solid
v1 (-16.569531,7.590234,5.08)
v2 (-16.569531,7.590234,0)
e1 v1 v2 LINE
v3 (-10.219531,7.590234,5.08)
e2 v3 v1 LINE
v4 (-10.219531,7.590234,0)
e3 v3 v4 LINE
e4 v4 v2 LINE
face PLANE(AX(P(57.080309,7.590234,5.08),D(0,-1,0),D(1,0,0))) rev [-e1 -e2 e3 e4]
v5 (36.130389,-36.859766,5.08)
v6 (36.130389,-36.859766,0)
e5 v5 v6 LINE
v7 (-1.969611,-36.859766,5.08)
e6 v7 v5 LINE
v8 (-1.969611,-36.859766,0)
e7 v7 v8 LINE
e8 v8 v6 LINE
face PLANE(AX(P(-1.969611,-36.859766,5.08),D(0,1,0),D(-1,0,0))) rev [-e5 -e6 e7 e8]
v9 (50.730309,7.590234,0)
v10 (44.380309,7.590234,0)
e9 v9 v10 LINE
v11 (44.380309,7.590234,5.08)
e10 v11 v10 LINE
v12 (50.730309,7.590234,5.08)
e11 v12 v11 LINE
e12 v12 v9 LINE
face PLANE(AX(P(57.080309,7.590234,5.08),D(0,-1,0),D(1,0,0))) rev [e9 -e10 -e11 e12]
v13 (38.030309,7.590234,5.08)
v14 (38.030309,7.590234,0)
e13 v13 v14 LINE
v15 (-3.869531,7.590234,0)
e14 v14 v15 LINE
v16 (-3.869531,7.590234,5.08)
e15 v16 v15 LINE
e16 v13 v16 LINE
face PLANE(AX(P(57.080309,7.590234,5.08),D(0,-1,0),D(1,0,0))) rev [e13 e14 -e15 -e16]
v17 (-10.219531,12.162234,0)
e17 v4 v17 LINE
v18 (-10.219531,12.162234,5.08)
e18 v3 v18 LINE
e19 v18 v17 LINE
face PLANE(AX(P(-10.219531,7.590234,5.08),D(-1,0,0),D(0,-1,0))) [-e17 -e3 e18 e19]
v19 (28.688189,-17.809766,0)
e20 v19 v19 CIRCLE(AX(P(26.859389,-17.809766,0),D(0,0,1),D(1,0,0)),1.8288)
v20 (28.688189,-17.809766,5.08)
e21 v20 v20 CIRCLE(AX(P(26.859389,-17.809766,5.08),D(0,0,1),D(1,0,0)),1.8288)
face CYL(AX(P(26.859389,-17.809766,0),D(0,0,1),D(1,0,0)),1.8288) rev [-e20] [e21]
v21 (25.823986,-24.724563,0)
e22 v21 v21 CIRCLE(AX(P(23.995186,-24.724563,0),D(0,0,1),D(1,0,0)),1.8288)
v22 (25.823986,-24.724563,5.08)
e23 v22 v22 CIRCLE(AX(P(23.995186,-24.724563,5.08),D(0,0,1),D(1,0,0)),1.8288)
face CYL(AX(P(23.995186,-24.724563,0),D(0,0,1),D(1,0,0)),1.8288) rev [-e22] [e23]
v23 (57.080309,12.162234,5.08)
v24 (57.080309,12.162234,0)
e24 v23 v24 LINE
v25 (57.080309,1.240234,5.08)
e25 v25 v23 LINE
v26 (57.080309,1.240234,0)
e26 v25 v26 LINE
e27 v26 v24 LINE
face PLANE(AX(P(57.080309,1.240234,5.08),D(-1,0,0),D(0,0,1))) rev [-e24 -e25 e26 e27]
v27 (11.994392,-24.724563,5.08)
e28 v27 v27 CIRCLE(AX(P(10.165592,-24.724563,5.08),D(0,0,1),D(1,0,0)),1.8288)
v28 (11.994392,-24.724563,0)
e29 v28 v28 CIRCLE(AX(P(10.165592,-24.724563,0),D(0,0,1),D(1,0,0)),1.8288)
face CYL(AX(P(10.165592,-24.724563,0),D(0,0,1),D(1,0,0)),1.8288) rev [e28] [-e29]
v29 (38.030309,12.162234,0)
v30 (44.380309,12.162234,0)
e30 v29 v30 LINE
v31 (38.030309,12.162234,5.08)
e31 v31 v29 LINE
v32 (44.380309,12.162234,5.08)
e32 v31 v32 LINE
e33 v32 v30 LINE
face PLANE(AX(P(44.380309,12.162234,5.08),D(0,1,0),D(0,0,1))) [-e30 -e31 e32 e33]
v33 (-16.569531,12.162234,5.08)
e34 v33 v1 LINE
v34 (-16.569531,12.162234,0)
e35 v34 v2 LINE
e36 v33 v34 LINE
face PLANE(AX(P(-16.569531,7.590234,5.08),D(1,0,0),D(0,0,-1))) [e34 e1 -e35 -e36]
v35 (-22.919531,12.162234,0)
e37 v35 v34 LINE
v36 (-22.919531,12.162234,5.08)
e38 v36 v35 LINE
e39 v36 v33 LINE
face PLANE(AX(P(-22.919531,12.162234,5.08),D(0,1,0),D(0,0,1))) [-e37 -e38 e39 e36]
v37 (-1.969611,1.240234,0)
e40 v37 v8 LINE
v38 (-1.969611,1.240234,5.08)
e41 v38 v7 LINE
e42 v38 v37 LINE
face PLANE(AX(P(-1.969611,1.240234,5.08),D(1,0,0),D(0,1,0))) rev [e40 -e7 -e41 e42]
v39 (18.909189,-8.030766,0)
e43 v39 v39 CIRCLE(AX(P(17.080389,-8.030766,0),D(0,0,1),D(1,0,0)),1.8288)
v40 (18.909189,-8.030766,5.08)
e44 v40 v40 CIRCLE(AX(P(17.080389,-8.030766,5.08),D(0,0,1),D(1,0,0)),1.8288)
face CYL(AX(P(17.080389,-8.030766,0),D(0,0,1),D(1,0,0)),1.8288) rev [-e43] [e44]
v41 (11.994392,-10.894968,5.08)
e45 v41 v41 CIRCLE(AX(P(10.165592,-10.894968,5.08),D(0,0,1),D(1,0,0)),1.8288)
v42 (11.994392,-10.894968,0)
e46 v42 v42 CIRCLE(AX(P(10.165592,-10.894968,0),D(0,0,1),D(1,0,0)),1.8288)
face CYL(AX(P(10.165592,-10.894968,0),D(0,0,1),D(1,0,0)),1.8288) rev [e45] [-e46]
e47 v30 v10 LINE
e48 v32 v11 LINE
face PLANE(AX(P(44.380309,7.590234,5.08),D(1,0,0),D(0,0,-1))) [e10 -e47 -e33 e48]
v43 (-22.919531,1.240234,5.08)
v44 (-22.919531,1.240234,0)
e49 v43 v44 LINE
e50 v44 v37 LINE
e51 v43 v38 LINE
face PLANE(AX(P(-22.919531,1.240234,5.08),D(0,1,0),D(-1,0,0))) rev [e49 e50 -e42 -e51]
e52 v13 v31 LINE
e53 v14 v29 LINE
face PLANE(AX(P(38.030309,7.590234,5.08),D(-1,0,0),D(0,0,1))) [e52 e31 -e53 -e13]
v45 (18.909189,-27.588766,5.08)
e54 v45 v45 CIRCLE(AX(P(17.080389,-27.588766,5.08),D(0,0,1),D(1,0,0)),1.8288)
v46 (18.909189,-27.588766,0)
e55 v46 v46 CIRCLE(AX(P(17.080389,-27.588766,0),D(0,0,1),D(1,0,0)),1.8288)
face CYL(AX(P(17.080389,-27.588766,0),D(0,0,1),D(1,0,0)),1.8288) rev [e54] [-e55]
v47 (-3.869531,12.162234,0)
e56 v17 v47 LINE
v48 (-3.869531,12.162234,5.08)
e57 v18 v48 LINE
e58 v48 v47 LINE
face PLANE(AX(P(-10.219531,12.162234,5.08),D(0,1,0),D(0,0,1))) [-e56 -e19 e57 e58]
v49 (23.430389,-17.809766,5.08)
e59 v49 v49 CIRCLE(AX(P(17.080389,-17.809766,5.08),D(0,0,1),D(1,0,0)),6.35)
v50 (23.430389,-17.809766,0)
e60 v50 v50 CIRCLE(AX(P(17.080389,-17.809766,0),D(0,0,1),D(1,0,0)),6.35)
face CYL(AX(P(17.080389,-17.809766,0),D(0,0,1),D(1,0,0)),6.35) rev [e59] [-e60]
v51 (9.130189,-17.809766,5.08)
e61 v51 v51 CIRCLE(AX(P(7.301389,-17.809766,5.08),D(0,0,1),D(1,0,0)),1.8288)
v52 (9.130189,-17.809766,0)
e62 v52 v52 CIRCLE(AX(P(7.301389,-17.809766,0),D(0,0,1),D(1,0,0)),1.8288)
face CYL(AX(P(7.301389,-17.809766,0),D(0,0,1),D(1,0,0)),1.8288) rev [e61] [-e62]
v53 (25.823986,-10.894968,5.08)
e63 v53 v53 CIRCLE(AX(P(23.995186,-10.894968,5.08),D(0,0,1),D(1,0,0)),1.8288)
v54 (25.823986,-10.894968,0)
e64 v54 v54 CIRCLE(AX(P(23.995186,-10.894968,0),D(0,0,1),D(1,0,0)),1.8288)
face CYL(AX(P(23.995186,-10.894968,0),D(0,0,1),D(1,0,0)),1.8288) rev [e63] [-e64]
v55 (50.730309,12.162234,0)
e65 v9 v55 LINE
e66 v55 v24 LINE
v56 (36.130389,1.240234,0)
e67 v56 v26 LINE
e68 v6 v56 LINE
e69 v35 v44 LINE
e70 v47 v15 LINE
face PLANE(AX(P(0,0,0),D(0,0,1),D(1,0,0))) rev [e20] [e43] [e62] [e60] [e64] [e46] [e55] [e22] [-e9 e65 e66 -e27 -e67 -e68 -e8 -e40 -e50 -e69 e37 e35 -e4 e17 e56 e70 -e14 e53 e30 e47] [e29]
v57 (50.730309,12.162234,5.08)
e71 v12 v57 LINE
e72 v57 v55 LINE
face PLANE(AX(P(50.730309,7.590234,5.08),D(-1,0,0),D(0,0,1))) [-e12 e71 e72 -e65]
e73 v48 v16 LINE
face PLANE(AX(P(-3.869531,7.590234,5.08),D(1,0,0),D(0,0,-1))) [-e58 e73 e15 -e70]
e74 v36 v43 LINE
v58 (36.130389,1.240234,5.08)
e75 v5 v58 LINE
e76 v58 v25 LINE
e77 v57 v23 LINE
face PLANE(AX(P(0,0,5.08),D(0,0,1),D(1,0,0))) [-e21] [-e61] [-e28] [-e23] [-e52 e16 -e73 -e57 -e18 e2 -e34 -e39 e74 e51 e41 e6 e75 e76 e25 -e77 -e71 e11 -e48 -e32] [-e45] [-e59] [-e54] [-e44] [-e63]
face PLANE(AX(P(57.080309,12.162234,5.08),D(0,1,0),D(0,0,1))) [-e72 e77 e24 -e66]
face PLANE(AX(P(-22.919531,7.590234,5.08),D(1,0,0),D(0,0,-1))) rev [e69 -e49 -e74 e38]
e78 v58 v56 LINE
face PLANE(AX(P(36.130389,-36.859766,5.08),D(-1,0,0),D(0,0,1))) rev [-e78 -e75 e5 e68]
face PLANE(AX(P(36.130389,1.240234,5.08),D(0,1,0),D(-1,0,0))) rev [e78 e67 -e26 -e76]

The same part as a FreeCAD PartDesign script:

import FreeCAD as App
import Part
import Sketcher

V = App.Vector
Q = App.Units.Quantity


def add_polygon(sketch, points):
    """Adds a closed chain of lines whose ends are joined by coincident constraints."""
    first, n = sketch.GeometryCount, len(points)
    for a, b in zip(points, points[1:] + points[:1]):
        sketch.addGeometry(Part.LineSegment(App.Vector(*a, 0), App.Vector(*b, 0)), False)
    for i in range(n):
        sketch.addConstraint(Sketcher.Constraint("Coincident", first + i, 2, first + (i + 1) % n, 1))

doc = App.newDocument("Part")
body = doc.addObject("PartDesign::Body", "Body")

# Sketch on XY plane
sketch1 = body.newObject("Sketcher::SketchObject", "Sketch")
sketch1.AttachmentSupport = (doc.getObject("XY_Plane"), [""])
sketch1.MapMode = "FlatFace"
add_polygon(sketch1, [(-23, 8), (-23, 1), (-2, 1), (-2, -37), (36, -37), (36, 1), (57, 1), (57, 8)])  # lines 0-7
sketch1.addConstraint([
    Sketcher.Constraint("Vertical", 0),
    Sketcher.Constraint("Horizontal", 1),
    Sketcher.Constraint("Vertical", 2),
    Sketcher.Constraint("Horizontal", 3),
    Sketcher.Constraint("Vertical", 4),
    Sketcher.Constraint("Horizontal", 5),
    Sketcher.Constraint("Vertical", 6),
    Sketcher.Constraint("Horizontal", 7),
    Sketcher.Constraint("Horizontal", 1, 2, 4, 2),
    Sketcher.Constraint("Equal", 1, 5),
    Sketcher.Constraint("Equal", 3, 2),
    Sketcher.Constraint("DistanceX", 3, 1, 3, 2, Q("1.5 in")),
    Sketcher.Constraint("DistanceY", 0, 2, 0, 1, Q("0.25 in")),
    Sketcher.Constraint("DistanceX", 1, 1, 1, 2, Q("0.8248 in")),
    Sketcher.Constraint("DistanceX", 0, 2, -1, 1, 22.919531),
    Sketcher.Constraint("DistanceY", -1, 1, 0, 2, 1.240234),
])
pad1 = body.newObject("PartDesign::Pad", "Pad")
pad1.Profile = sketch1
pad1.Length = Q("0.2 in")

# Sketch on XY plane
sketch2 = body.newObject("Sketcher::SketchObject", "Sketch001")
sketch2.AttachmentSupport = (doc.getObject("XY_Plane"), [""])
sketch2.MapMode = "FlatFace"
add_polygon(sketch2, [(-16.6, 12.2), (-16.6, 7.6), (-22.9, 7.6), (-22.9, 12.2)])  # lines 0-3
add_polygon(sketch2, [(-3.9, 12.2), (-3.9, 7.6), (-10.2, 7.6), (-10.2, 12.2)])  # lines 4-7
add_polygon(sketch2, [(8.8, 12.2), (8.8, 7.6), (2.5, 7.6), (2.5, 12.2)])  # lines 8-11
add_polygon(sketch2, [(31.7, 12.2), (31.7, 7.6), (25.3, 7.6), (25.3, 12.2)])  # lines 12-15
add_polygon(sketch2, [(44.4, 12.2), (44.4, 7.6), (38, 7.6), (38, 12.2)])  # lines 16-19
add_polygon(sketch2, [(57.1, 12.2), (57.1, 7.6), (50.7, 7.6), (50.7, 12.2)])  # lines 20-23
sketch2.addConstraint([
    Sketcher.Constraint("Vertical", 0),
    Sketcher.Constraint("Horizontal", 1),
    Sketcher.Constraint("Vertical", 2),
    Sketcher.Constraint("Horizontal", 3),
    Sketcher.Constraint("Vertical", 4),
    Sketcher.Constraint("Horizontal", 5),
    Sketcher.Constraint("Vertical", 6),
    Sketcher.Constraint("Horizontal", 7),
    Sketcher.Constraint("Vertical", 8),
    Sketcher.Constraint("Horizontal", 9),
    Sketcher.Constraint("Vertical", 10),
    Sketcher.Constraint("Horizontal", 11),
    Sketcher.Constraint("Vertical", 12),
    Sketcher.Constraint("Horizontal", 13),
    Sketcher.Constraint("Vertical", 14),
    Sketcher.Constraint("Horizontal", 15),
    Sketcher.Constraint("Vertical", 16),
    Sketcher.Constraint("Horizontal", 17),
    Sketcher.Constraint("Vertical", 18),
    Sketcher.Constraint("Horizontal", 19),
    Sketcher.Constraint("Vertical", 20),
    Sketcher.Constraint("Horizontal", 21),
    Sketcher.Constraint("Vertical", 22),
    Sketcher.Constraint("Horizontal", 23),
    Sketcher.Constraint("Horizontal", 1, 2, 4, 2),
    Sketcher.Constraint("Horizontal", 3, 2, 6, 2),
    Sketcher.Constraint("Horizontal", 5, 2, 8, 2),
    Sketcher.Constraint("Horizontal", 7, 2, 10, 2),
    Sketcher.Constraint("Horizontal", 9, 2, 12, 2),
    Sketcher.Constraint("Horizontal", 11, 2, 14, 2),
    Sketcher.Constraint("Horizontal", 13, 2, 16, 2),
    Sketcher.Constraint("Horizontal", 15, 2, 18, 2),
    Sketcher.Constraint("Horizontal", 17, 2, 20, 2),
    Sketcher.Constraint("Horizontal", 19, 2, 22, 2),
    Sketcher.Constraint("Equal", 3, 5),
    Sketcher.Constraint("Equal", 7, 9),
    Sketcher.Constraint("Equal", 11, 13),
    Sketcher.Constraint("Equal", 15, 17),
    Sketcher.Constraint("Equal", 19, 21),
    Sketcher.Constraint("DistanceX", 0, 2, 8, 2, Q("1 in")),
    Sketcher.Constraint("DistanceX", 12, 2, 20, 2, Q("1 in")),
    Sketcher.Constraint("DistanceX", 1, 2, 1, 1, Q("0.25 in")),
    Sketcher.Constraint("DistanceY", 0, 2, 0, 1, Q("0.18 in")),
    Sketcher.Constraint("DistanceX", 0, 2, 4, 2, Q("0.5 in")),
    Sketcher.Constraint("DistanceX", 12, 2, 16, 2, Q("0.5 in")),
    Sketcher.Constraint("DistanceX", 8, 2, 12, 2, Q("0.8996 in")),
    Sketcher.Constraint("DistanceX", 0, 2, -1, 1, 16.569531),
    Sketcher.Constraint("DistanceY", -1, 1, 0, 2, 7.590234),
])
pad2 = body.newObject("PartDesign::Pad", "Pad001")
pad2.Profile = sketch2
pad2.Length = Q("0.2 in")

# Sketch on XY plane
sketch3 = body.newObject("Sketcher::SketchObject", "Sketch002")
sketch3.AttachmentSupport = (doc.getObject("XY_Plane"), [""])
sketch3.MapMode = "FlatFace"
sketch3.AttachmentOffset = App.Placement(V(0, 0, 0.2 * 25.4), App.Rotation())
sketch3.addGeometry([
    Part.Circle(V(17.1, -17.8, 0), V(0, 0, 1), 6.3),  # 0
    Part.Circle(V(7.3, -17.8, 0), V(0, 0, 1), 1.8),  # 1
    Part.Circle(V(10.2, -10.9, 0), V(0, 0, 1), 1.8),  # 2
    Part.Circle(V(17.1, -8, 0), V(0, 0, 1), 1.8),  # 3
    Part.Circle(V(24, -10.9, 0), V(0, 0, 1), 1.8),  # 4
    Part.Circle(V(26.9, -17.8, 0), V(0, 0, 1), 1.8),  # 5
    Part.Circle(V(24, -24.7, 0), V(0, 0, 1), 1.8),  # 6
    Part.Circle(V(17.1, -27.6, 0), V(0, 0, 1), 1.8),  # 7
    Part.Circle(V(10.2, -24.7, 0), V(0, 0, 1), 1.8),  # 8
], False)
sketch3.addConstraint([
    Sketcher.Constraint("Equal", 1, 2),
    Sketcher.Constraint("Equal", 2, 3),
    Sketcher.Constraint("Equal", 3, 4),
    Sketcher.Constraint("Equal", 4, 5),
    Sketcher.Constraint("Equal", 5, 6),
    Sketcher.Constraint("Equal", 6, 7),
    Sketcher.Constraint("Equal", 7, 8),
    Sketcher.Constraint("Horizontal", 0, 3, 1, 3),
    Sketcher.Constraint("Horizontal", 2, 3, 4, 3),
    Sketcher.Constraint("Horizontal", 1, 3, 5, 3),
    Sketcher.Constraint("Horizontal", 6, 3, 8, 3),
    Sketcher.Constraint("Vertical", 0, 3, 3, 3),
    Sketcher.Constraint("Vertical", 4, 3, 6, 3),
    Sketcher.Constraint("Vertical", 3, 3, 7, 3),
    Sketcher.Constraint("Vertical", 2, 3, 8, 3),
    Sketcher.Constraint("Diameter", 0, Q("0.5 in")),
    Sketcher.Constraint("Diameter", 1, Q("0.144 in")),
    Sketcher.Constraint("DistanceX", 1, 3, 5, 3, Q("0.77 in")),
    Sketcher.Constraint("DistanceX", 1, 3, 0, 3, Q("0.385 in")),
    Sketcher.Constraint("DistanceY", 0, 3, 3, 3, Q("0.385 in")),
    Sketcher.Constraint("DistanceY", 7, 3, 0, 3, Q("0.385 in")),
    Sketcher.Constraint("DistanceX", -1, 1, 0, 3, 17.080389),
    Sketcher.Constraint("DistanceX", -1, 1, 2, 3, 10.165592),
    Sketcher.Constraint("DistanceY", 2, 3, -1, 1, 10.894968),
    Sketcher.Constraint("DistanceY", 0, 3, -1, 1, 17.809766),
    Sketcher.Constraint("DistanceX", -1, 1, 4, 3, 23.995186),
    Sketcher.Constraint("DistanceY", 6, 3, -1, 1, 24.724563),
])
pocket1 = body.newObject("PartDesign::Pocket", "Pocket")
pocket1.Profile = sketch3
pocket1.Length = Q("0.2 in")

# Sketch on XY plane
sketch4 = body.newObject("Sketcher::SketchObject", "Sketch003")
sketch4.AttachmentSupport = (doc.getObject("XY_Plane"), [""])
sketch4.MapMode = "FlatFace"
sketch4.AttachmentOffset = App.Placement(V(0, 0, 0.2 * 25.4), App.Rotation())
add_polygon(sketch4, [(2.5, 12.2), (2.5, 7.6), (31.7, 7.6), (31.7, 12.2)])  # lines 0-3
sketch4.addConstraint([
    Sketcher.Constraint("Vertical", 0),
    Sketcher.Constraint("Horizontal", 1),
    Sketcher.Constraint("Vertical", 2),
    Sketcher.Constraint("Horizontal", 3),
    Sketcher.Constraint("DistanceY", 0, 2, 0, 1, Q("0.18 in")),
    Sketcher.Constraint("DistanceX", 1, 1, 1, 2, Q("1.1496 in")),
    Sketcher.Constraint("DistanceX", -1, 1, 0, 2, 2.480469),
    Sketcher.Constraint("DistanceY", -1, 1, 0, 2, 7.590234),
])
pocket2 = body.newObject("PartDesign::Pocket", "Pocket001")
pocket2.Profile = sketch4
pocket2.Length = Q("0.2 in")

doc.recompute()
